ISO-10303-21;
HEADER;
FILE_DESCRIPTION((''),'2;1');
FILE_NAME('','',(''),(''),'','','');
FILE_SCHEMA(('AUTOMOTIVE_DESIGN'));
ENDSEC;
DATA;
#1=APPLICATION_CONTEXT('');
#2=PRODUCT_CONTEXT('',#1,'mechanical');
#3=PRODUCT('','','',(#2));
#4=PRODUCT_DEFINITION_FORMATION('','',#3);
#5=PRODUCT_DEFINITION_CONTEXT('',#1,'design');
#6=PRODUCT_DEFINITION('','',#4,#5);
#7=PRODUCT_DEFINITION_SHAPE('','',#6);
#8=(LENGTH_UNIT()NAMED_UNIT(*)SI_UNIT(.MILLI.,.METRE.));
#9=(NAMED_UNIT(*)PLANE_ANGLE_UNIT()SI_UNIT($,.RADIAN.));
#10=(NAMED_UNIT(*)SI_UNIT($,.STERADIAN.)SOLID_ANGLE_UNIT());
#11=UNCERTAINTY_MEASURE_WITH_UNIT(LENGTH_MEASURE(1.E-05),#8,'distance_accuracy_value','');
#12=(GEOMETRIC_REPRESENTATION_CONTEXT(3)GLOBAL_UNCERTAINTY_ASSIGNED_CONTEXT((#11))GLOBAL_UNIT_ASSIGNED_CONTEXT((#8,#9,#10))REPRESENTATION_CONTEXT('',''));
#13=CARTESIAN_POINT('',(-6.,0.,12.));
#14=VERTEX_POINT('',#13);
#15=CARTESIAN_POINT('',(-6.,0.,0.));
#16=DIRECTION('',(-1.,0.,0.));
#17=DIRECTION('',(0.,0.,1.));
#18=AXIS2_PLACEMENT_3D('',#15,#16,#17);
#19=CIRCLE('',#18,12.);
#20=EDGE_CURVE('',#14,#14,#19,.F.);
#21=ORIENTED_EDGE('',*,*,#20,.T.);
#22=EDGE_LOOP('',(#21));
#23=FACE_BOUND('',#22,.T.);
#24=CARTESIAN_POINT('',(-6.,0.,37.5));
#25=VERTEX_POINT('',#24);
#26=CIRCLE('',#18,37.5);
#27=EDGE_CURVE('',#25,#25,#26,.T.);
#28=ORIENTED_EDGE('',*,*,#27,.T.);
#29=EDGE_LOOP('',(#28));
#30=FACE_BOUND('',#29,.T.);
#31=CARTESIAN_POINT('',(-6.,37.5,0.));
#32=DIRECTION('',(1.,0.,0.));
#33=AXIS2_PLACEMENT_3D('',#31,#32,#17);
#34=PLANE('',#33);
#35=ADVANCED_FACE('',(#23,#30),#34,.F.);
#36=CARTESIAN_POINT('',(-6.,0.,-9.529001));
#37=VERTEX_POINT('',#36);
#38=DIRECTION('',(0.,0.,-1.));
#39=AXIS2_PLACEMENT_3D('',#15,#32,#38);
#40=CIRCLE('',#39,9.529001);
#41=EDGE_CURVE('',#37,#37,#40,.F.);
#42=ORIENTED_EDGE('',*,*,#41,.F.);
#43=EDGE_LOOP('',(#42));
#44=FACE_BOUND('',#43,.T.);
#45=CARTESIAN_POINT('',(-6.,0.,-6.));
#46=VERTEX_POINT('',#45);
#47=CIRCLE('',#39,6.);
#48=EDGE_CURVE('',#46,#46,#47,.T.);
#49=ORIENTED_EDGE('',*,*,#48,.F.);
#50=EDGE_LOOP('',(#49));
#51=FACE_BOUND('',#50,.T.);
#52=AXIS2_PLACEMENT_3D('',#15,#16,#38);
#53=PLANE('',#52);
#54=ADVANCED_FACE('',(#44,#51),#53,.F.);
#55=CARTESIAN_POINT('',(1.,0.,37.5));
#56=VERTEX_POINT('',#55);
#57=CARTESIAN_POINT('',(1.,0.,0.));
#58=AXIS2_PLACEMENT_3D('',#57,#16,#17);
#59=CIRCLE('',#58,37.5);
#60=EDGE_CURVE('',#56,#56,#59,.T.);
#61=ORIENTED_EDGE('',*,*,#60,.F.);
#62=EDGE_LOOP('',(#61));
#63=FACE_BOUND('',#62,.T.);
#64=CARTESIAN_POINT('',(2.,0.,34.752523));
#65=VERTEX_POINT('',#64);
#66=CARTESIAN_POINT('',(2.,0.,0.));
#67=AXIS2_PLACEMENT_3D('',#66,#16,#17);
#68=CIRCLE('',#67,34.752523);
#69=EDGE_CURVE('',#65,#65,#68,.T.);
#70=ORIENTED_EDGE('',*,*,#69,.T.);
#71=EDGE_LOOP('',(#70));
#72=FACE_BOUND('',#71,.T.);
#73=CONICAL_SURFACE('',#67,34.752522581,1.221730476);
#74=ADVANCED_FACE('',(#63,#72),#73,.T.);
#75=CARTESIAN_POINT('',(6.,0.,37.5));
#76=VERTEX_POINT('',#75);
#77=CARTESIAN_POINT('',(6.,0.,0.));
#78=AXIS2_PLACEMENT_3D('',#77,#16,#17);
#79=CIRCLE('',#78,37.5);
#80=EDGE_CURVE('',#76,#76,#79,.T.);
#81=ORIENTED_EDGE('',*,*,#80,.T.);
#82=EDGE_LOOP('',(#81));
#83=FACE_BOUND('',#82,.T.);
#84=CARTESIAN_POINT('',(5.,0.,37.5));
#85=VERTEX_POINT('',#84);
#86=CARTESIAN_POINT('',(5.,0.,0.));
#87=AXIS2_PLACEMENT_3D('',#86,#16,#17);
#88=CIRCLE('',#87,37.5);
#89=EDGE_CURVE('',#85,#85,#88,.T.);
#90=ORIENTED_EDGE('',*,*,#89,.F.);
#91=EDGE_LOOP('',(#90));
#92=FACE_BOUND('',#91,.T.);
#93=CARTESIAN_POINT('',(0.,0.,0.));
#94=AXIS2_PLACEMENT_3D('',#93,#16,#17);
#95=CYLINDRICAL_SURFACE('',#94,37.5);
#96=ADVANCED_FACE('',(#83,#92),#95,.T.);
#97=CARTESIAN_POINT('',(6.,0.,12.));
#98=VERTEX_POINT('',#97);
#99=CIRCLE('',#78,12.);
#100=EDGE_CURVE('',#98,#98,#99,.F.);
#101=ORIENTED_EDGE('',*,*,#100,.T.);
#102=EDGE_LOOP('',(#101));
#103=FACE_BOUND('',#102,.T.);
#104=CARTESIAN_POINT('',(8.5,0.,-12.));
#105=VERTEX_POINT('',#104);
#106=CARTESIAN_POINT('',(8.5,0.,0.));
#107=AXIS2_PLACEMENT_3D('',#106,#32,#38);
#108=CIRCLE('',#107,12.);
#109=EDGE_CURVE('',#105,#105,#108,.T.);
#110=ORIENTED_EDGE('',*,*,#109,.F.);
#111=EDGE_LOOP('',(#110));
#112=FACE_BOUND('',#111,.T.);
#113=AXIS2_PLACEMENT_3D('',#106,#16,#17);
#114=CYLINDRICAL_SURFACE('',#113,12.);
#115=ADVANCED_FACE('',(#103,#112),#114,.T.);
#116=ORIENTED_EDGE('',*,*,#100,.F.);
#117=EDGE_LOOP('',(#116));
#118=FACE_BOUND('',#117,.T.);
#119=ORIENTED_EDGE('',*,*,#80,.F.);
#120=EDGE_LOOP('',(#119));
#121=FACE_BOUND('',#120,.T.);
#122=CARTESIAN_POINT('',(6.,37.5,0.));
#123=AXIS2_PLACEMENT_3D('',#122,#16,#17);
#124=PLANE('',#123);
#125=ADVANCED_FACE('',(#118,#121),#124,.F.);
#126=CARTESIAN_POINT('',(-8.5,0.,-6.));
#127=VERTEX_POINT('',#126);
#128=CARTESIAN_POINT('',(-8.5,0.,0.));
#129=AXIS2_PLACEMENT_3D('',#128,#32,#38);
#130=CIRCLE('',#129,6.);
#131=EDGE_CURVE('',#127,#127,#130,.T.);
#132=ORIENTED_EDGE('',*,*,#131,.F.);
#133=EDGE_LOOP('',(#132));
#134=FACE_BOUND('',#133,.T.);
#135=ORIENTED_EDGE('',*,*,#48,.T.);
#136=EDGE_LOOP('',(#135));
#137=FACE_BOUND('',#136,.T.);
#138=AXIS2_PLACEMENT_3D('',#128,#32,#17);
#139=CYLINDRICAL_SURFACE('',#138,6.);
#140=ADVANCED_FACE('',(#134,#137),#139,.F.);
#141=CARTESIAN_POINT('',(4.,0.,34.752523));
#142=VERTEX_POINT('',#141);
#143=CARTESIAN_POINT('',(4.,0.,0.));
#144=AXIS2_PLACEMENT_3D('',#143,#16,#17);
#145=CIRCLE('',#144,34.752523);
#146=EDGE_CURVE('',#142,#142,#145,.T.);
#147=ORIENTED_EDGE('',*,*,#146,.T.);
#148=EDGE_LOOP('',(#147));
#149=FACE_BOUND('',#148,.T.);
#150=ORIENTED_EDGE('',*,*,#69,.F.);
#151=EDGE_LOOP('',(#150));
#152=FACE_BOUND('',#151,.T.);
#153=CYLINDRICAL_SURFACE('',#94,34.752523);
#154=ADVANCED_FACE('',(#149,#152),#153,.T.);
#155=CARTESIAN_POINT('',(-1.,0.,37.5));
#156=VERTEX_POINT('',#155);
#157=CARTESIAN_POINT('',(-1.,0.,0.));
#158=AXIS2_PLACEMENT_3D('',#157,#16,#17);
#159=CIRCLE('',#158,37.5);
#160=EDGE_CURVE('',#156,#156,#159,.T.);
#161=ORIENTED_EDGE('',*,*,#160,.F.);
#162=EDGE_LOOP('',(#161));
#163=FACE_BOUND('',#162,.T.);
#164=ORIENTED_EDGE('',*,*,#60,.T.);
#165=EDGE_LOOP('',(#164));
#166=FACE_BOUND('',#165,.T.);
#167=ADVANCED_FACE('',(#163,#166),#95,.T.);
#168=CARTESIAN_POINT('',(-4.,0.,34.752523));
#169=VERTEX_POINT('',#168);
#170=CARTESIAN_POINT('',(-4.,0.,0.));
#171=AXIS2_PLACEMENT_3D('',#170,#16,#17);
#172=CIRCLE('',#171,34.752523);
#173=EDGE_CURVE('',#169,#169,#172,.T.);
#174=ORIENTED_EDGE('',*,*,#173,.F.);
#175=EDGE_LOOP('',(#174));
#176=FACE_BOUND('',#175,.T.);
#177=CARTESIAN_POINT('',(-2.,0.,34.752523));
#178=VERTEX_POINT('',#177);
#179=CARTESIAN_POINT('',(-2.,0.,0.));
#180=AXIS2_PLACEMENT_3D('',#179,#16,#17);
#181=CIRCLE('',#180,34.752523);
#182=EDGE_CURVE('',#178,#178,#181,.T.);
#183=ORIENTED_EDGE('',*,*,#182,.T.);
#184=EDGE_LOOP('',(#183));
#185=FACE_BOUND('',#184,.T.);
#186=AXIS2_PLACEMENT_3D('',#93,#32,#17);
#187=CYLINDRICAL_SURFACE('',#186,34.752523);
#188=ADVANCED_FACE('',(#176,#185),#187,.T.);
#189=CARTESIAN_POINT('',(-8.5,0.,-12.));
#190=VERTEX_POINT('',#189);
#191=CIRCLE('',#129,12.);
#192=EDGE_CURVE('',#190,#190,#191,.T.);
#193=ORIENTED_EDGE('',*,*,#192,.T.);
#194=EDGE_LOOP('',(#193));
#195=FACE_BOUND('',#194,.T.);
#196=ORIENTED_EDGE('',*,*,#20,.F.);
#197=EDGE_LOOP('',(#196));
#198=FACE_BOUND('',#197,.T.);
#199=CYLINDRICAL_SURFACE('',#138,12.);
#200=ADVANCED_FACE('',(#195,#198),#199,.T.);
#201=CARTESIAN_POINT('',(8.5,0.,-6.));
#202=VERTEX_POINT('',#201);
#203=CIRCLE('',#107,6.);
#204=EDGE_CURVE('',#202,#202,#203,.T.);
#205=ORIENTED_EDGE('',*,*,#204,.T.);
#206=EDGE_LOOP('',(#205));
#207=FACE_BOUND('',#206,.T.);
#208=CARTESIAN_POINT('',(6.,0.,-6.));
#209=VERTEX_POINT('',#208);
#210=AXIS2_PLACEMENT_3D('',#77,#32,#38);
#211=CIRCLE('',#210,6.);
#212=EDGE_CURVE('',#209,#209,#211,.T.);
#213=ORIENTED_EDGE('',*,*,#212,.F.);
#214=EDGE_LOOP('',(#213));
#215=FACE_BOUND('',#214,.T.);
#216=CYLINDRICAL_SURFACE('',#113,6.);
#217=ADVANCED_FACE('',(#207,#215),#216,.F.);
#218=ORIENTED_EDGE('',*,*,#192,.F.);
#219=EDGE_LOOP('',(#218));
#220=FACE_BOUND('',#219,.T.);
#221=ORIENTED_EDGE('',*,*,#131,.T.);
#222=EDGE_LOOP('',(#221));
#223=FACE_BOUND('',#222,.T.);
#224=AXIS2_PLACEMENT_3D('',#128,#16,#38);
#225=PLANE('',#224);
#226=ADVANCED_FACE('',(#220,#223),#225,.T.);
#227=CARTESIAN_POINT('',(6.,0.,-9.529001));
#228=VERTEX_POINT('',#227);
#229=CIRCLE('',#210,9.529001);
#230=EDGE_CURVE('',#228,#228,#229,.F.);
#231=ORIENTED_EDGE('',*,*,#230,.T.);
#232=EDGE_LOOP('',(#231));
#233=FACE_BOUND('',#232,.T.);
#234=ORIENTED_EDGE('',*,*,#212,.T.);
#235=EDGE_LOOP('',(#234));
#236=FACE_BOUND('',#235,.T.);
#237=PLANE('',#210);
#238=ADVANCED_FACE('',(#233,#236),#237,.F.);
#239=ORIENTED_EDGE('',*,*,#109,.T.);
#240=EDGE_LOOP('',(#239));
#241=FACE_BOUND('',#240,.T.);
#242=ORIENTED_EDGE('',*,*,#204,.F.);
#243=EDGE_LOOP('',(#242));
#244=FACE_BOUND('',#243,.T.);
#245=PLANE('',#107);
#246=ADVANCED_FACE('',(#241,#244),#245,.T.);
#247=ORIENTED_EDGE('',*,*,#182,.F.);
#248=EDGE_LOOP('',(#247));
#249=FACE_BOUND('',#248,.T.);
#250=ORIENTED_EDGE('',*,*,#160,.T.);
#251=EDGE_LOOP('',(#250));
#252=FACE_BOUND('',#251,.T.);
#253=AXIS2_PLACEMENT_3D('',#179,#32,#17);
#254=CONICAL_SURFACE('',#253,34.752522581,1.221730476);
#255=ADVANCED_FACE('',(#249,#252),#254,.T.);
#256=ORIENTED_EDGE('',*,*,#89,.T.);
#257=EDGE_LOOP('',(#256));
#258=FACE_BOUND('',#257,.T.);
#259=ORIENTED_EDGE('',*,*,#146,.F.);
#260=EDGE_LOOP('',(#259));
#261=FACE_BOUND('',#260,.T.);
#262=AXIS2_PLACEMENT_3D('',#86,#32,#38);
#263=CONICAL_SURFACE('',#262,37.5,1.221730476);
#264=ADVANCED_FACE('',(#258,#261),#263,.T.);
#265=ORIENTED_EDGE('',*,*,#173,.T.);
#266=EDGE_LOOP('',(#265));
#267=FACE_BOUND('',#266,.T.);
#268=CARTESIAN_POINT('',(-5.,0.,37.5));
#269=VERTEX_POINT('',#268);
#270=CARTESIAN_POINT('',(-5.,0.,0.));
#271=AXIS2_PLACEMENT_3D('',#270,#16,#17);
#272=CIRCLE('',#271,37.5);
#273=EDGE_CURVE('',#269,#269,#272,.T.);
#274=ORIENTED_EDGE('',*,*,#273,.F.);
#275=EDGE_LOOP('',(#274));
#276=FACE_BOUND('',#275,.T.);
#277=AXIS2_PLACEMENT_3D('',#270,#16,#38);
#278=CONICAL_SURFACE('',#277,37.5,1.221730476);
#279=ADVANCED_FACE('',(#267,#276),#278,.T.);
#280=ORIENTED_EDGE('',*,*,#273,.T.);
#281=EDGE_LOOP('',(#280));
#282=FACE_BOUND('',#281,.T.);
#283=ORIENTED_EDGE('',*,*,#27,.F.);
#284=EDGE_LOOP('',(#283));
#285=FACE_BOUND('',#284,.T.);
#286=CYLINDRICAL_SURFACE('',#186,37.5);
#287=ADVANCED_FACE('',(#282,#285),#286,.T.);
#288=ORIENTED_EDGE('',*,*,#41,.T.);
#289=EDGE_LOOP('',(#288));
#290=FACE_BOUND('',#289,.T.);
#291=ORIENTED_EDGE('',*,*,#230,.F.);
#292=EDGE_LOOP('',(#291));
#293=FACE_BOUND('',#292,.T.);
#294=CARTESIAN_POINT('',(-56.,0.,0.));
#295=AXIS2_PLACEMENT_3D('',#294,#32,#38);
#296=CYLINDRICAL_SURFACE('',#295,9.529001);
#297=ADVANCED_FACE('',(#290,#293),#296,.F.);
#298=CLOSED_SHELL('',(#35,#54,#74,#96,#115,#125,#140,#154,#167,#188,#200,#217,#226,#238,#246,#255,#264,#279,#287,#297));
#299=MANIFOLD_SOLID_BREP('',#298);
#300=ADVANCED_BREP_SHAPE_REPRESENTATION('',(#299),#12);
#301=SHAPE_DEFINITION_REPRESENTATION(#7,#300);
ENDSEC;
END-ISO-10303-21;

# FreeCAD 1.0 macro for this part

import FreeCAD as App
import Part
import Sketcher
from FreeCAD import Vector
Q = App.Units.Quantity


def add_polygon(sketch, points):
    """Adds a closed chain of lines whose ends are joined by coincident constraints."""
    first, n = sketch.GeometryCount, len(points)
    for a, b in zip(points, points[1:] + points[:1]):
        sketch.addGeometry(Part.LineSegment(App.Vector(*a, 0), App.Vector(*b, 0)), False)
    for i in range(n):
        sketch.addConstraint(Sketcher.Constraint("Coincident", first + i, 2, first + (i + 1) % n, 1))

doc = App.newDocument("Part")
body = doc.addObject("PartDesign::Body", "Body")

sketch1 = body.newObject("Sketcher::SketchObject", "Sketch")
sketch1.AttachmentSupport = (doc.getObject("XY_Plane"), [""])
sketch1.MapMode = "FlatFace"
add_polygon(sketch1, [(0, 37.5), (0, 0), (6, 0), (6, 37.5), (5, 37.5), (4, 34.8), (2, 34.8), (1, 37.5)])
sketch1.addConstraint(Sketcher.Constraint("Vertical", 0))
sketch1.addConstraint(Sketcher.Constraint("Horizontal", 1))
sketch1.addConstraint(Sketcher.Constraint("Vertical", 2))
sketch1.addConstraint(Sketcher.Constraint("Horizontal", 3))
sketch1.addConstraint(Sketcher.Constraint("Horizontal", 5))
sketch1.addConstraint(Sketcher.Constraint("Horizontal", 7))
sketch1.addConstraint(Sketcher.Constraint("Coincident", 0, 2, -1, 1))
sketch1.addConstraint(Sketcher.Constraint("Horizontal", 3, 2, 6, 2))
sketch1.addConstraint(Sketcher.Constraint("Equal", 3, 7))
sketch1.addConstraint(Sketcher.Constraint("Equal", 4, 6))
sketch1.addConstraint(Sketcher.Constraint("DistanceX", 1, 1, 1, 2, Q("6 mm")))
sketch1.addConstraint(Sketcher.Constraint("DistanceX", 3, 2, 3, 1, Q("1 mm")))
sketch1.addConstraint(Sketcher.Constraint("DistanceX", 5, 2, 5, 1, Q("2 mm")))
sketch1.addConstraint(Sketcher.Constraint("Angle", 4, Q("-110 deg")))
sketch1.addConstraint(Sketcher.Constraint("DistanceY", 0, 2, 0, 1, Q("37.5 mm")))
revolution = body.newObject("PartDesign::Revolution", "Revolution")
revolution.Profile = sketch1
revolution.ReferenceAxis = (sketch1, ["H_Axis"])
revolution.Angle = 360

sketch2 = body.newObject("Sketcher::SketchObject", "Sketch001")
sketch2.AttachmentSupport = (doc.getObject("YZ_Plane"), [""])
sketch2.MapMode = "FlatFace"
sketch2.AttachmentOffset = App.Placement(Vector(0, 0, 6), App.Rotation())
sketch2.addGeometry(Part.Circle(Vector(0, 0, 0), Vector(0, 0, 1), 10), False)
sketch2.addConstraint(Sketcher.Constraint("Coincident", 0, 3, -1, 1))
sketch2.addConstraint(Sketcher.Constraint("Diameter", 0, Q("19.058001 mm")))
pocket1 = body.newObject("PartDesign::Pocket", "Pocket")
pocket1.Profile = sketch2
pocket1.Length = 62

sketch3 = body.newObject("Sketcher::SketchObject", "Sketch002")
sketch3.AttachmentSupport = (doc.getObject("YZ_Plane"), [""])
sketch3.MapMode = "FlatFace"
sketch3.AttachmentOffset = App.Placement(Vector(0, 0, 6), App.Rotation())
sketch3.addGeometry(Part.Circle(Vector(0, 0, 0), Vector(0, 0, 1), 12), False)
sketch3.addGeometry(Part.Circle(Vector(0, 0, 0), Vector(0, 0, 1), 6), False)
sketch3.addConstraint(Sketcher.Constraint("Coincident", 0, 3, -1, 1))
sketch3.addConstraint(Sketcher.Constraint("Coincident", 1, 3, -1, 1))
sketch3.addConstraint(Sketcher.Constraint("Diameter", 0, Q("24 mm")))
sketch3.addConstraint(Sketcher.Constraint("Diameter", 1, Q("12 mm")))
pad1 = body.newObject("PartDesign::Pad", "Pad")
pad1.Profile = sketch3
pad1.Length = 2.5
body2 = doc.addObject("PartDesign::Body", "Body001")
doc.recompute()

body2.BaseFeature = body
doc.recompute()

mirroring = doc.addObject("Part::Mirroring", "Mirroring")
mirroring.Source = body
mirroring.Base = Vector(0, 0, 0)
mirroring.Normal = Vector(1, 0, 0)
body3 = doc.addObject("PartDesign::Body", "Body002")
body3.BaseFeature = mirroring
boolean = body2.newObject("PartDesign::Boolean", "Boolean")
boolean.Type = "Fuse"
boolean.addObjects([body3])
doc.recompute()
mirroring.Visibility = False

doc.recompute()
